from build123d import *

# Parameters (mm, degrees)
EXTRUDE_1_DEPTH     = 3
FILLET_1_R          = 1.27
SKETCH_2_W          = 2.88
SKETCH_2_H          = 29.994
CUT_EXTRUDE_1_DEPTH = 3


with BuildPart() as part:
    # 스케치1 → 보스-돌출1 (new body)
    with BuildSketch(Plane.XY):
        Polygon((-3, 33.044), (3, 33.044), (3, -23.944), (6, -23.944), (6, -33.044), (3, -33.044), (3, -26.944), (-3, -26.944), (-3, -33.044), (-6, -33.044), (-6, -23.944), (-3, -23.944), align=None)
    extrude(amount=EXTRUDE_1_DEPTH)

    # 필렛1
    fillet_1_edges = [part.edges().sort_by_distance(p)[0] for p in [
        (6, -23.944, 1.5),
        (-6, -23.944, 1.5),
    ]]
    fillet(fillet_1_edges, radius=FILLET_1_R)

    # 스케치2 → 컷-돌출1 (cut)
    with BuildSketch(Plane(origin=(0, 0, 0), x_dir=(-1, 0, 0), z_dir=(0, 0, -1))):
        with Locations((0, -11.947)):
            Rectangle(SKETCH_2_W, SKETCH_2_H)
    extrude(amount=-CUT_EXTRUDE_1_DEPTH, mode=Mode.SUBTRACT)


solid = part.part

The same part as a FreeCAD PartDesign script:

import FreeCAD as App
import Part
import Sketcher
Q = App.Units.Quantity


def edges_at(feature, points):
    """Names of the edges that pass closest to the given points."""
    edges = feature.Shape.Edges
    near = lambda p: min(range(len(edges)), key=lambda i: edges[i].distToShape(Part.Vertex(*p))[0])
    return sorted({f"Edge{near(p) + 1}" for p in points})

doc = App.newDocument("Part")
body = doc.addObject("PartDesign::Body", "Body")

sketch1 = body.newObject("Sketcher::SketchObject", "Sketch")
sketch1.AttachmentSupport = (doc.getObject("XY_Plane"), [""])
sketch1.MapMode = "FlatFace"
sketch1.addGeometry(Part.LineSegment(App.Vector(3, 33, 0), App.Vector(-3, 33, 0)), False)
sketch1.addGeometry(Part.LineSegment(App.Vector(-3, 33, 0), App.Vector(-3, -23.9, 0)), False)
sketch1.addGeometry(Part.LineSegment(App.Vector(-3, -23.9, 0), App.Vector(-6, -23.9, 0)), False)
sketch1.addGeometry(Part.LineSegment(App.Vector(-6, -23.9, 0), App.Vector(-6, -33, 0)), False)
sketch1.addGeometry(Part.LineSegment(App.Vector(-6, -33, 0), App.Vector(-3, -33, 0)), False)
sketch1.addGeometry(Part.LineSegment(App.Vector(-3, -33, 0), App.Vector(-3, -26.9, 0)), False)
sketch1.addGeometry(Part.LineSegment(App.Vector(-3, -26.9, 0), App.Vector(3, -26.9, 0)), False)
sketch1.addGeometry(Part.LineSegment(App.Vector(3, -26.9, 0), App.Vector(3, -33, 0)), False)
sketch1.addGeometry(Part.LineSegment(App.Vector(3, -33, 0), App.Vector(6, -33, 0)), False)
sketch1.addGeometry(Part.LineSegment(App.Vector(6, -33, 0), App.Vector(6, -23.9, 0)), False)
sketch1.addGeometry(Part.LineSegment(App.Vector(6, -23.9, 0), App.Vector(3, -23.9, 0)), False)
sketch1.addGeometry(Part.LineSegment(App.Vector(3, -23.9, 0), App.Vector(3, 33, 0)), False)
sketch1.addConstraint(Sketcher.Constraint("Coincident", 0, 2, 1, 1))
sketch1.addConstraint(Sketcher.Constraint("Coincident", 1, 2, 2, 1))
sketch1.addConstraint(Sketcher.Constraint("Coincident", 2, 2, 3, 1))
sketch1.addConstraint(Sketcher.Constraint("Coincident", 3, 2, 4, 1))
sketch1.addConstraint(Sketcher.Constraint("Coincident", 4, 2, 5, 1))
sketch1.addConstraint(Sketcher.Constraint("Coincident", 5, 2, 6, 1))
sketch1.addConstraint(Sketcher.Constraint("Coincident", 6, 2, 7, 1))
sketch1.addConstraint(Sketcher.Constraint("Coincident", 7, 2, 8, 1))
sketch1.addConstraint(Sketcher.Constraint("Coincident", 8, 2, 9, 1))
sketch1.addConstraint(Sketcher.Constraint("Coincident", 9, 2, 10, 1))
sketch1.addConstraint(Sketcher.Constraint("Coincident", 10, 2, 11, 1))
sketch1.addConstraint(Sketcher.Constraint("Coincident", 11, 2, 0, 1))
sketch1.addConstraint(Sketcher.Constraint("Horizontal", 0))
sketch1.addConstraint(Sketcher.Constraint("Vertical", 1))
sketch1.addConstraint(Sketcher.Constraint("Horizontal", 2))
sketch1.addConstraint(Sketcher.Constraint("Vertical", 3))
sketch1.addConstraint(Sketcher.Constraint("Horizontal", 4))
sketch1.addConstraint(Sketcher.Constraint("Vertical", 5))
sketch1.addConstraint(Sketcher.Constraint("Horizontal", 6))
sketch1.addConstraint(Sketcher.Constraint("Vertical", 7))
sketch1.addConstraint(Sketcher.Constraint("Horizontal", 8))
sketch1.addConstraint(Sketcher.Constraint("Vertical", 9))
sketch1.addConstraint(Sketcher.Constraint("Horizontal", 10))
sketch1.addConstraint(Sketcher.Constraint("Vertical", 11))
sketch1.addConstraint(Sketcher.Constraint("Symmetric", 0, 2, 7, 2, -1, 1))
sketch1.addConstraint(Sketcher.Constraint("Symmetric", 4, 2, 11, 2, -1, 1))
sketch1.addConstraint(Sketcher.Constraint("Symmetric", 2, 2, 9, 2, -2))
sketch1.addConstraint(Sketcher.Constraint("Vertical", 1, 2, 4, 2))
sketch1.addConstraint(Sketcher.Constraint("DistanceX", 0, 2, 0, 1, Q("6 mm")))
sketch1.addConstraint(Sketcher.Constraint("DistanceX", 2, 2, 2, 1, Q("3 mm")))
sketch1.addConstraint(Sketcher.Constraint("DistanceY", 3, 2, 3, 1, Q("9.1 mm")))
sketch1.addConstraint(Sketcher.Constraint("DistanceY", 5, 1, 5, 2, Q("6.1 mm")))
sketch1.addConstraint(Sketcher.Constraint("DistanceY", 1, 2, 1, 1, Q("56.988 mm")))
pad1 = body.newObject("PartDesign::Pad", "Pad")
pad1.Profile = sketch1
pad1.Length = 3
doc.recompute()

fillet = body.newObject("PartDesign::Fillet", "Fillet")
fillet.Base = (pad1, edges_at(pad1, [(6, -23.944, 1.5), (-6, -23.944, 1.5)]))
fillet.Radius = 1.27

sketch2 = body.newObject("Sketcher::SketchObject", "Sketch001")
sketch2.AttachmentSupport = (doc.getObject("XY_Plane"), [""])
sketch2.MapMode = "FlatFace"
sketch2.addGeometry(Part.LineSegment(App.Vector(1.4, 3, 0), App.Vector(1.4, -26.9, 0)), False)
sketch2.addGeometry(Part.LineSegment(App.Vector(1.4, -26.9, 0), App.Vector(-1.4, -26.9, 0)), False)
sketch2.addGeometry(Part.LineSegment(App.Vector(-1.4, -26.9, 0), App.Vector(-1.4, 3, 0)), False)
sketch2.addGeometry(Part.LineSegment(App.Vector(-1.4, 3, 0), App.Vector(1.4, 3, 0)), False)
sketch2.addConstraint(Sketcher.Constraint("Coincident", 0, 2, 1, 1))
sketch2.addConstraint(Sketcher.Constraint("Coincident", 1, 2, 2, 1))
sketch2.addConstraint(Sketcher.Constraint("Coincident", 2, 2, 3, 1))
sketch2.addConstraint(Sketcher.Constraint("Coincident", 3, 2, 0, 1))
sketch2.addConstraint(Sketcher.Constraint("Vertical", 0))
sketch2.addConstraint(Sketcher.Constraint("Horizontal", 1))
sketch2.addConstraint(Sketcher.Constraint("Vertical", 2))
sketch2.addConstraint(Sketcher.Constraint("Horizontal", 3))
sketch2.addConstraint(Sketcher.Constraint("DistanceX", 1, 2, 1, 1, Q("2.88 mm")))
sketch2.addConstraint(Sketcher.Constraint("DistanceY", 0, 2, 0, 1, Q("29.994 mm")))
sketch2.addConstraint(Sketcher.Constraint("DistanceX", -1, 1, 0, 2, Q("1.44 mm")))
sketch2.addConstraint(Sketcher.Constraint("DistanceY", -1, 1, 2, 2, Q("3.05 mm")))
pocket1 = body.newObject("PartDesign::Pocket", "Pocket")
pocket1.Profile = sketch2
pocket1.Length = 3
pocket1.Reversed = True

doc.recompute()
